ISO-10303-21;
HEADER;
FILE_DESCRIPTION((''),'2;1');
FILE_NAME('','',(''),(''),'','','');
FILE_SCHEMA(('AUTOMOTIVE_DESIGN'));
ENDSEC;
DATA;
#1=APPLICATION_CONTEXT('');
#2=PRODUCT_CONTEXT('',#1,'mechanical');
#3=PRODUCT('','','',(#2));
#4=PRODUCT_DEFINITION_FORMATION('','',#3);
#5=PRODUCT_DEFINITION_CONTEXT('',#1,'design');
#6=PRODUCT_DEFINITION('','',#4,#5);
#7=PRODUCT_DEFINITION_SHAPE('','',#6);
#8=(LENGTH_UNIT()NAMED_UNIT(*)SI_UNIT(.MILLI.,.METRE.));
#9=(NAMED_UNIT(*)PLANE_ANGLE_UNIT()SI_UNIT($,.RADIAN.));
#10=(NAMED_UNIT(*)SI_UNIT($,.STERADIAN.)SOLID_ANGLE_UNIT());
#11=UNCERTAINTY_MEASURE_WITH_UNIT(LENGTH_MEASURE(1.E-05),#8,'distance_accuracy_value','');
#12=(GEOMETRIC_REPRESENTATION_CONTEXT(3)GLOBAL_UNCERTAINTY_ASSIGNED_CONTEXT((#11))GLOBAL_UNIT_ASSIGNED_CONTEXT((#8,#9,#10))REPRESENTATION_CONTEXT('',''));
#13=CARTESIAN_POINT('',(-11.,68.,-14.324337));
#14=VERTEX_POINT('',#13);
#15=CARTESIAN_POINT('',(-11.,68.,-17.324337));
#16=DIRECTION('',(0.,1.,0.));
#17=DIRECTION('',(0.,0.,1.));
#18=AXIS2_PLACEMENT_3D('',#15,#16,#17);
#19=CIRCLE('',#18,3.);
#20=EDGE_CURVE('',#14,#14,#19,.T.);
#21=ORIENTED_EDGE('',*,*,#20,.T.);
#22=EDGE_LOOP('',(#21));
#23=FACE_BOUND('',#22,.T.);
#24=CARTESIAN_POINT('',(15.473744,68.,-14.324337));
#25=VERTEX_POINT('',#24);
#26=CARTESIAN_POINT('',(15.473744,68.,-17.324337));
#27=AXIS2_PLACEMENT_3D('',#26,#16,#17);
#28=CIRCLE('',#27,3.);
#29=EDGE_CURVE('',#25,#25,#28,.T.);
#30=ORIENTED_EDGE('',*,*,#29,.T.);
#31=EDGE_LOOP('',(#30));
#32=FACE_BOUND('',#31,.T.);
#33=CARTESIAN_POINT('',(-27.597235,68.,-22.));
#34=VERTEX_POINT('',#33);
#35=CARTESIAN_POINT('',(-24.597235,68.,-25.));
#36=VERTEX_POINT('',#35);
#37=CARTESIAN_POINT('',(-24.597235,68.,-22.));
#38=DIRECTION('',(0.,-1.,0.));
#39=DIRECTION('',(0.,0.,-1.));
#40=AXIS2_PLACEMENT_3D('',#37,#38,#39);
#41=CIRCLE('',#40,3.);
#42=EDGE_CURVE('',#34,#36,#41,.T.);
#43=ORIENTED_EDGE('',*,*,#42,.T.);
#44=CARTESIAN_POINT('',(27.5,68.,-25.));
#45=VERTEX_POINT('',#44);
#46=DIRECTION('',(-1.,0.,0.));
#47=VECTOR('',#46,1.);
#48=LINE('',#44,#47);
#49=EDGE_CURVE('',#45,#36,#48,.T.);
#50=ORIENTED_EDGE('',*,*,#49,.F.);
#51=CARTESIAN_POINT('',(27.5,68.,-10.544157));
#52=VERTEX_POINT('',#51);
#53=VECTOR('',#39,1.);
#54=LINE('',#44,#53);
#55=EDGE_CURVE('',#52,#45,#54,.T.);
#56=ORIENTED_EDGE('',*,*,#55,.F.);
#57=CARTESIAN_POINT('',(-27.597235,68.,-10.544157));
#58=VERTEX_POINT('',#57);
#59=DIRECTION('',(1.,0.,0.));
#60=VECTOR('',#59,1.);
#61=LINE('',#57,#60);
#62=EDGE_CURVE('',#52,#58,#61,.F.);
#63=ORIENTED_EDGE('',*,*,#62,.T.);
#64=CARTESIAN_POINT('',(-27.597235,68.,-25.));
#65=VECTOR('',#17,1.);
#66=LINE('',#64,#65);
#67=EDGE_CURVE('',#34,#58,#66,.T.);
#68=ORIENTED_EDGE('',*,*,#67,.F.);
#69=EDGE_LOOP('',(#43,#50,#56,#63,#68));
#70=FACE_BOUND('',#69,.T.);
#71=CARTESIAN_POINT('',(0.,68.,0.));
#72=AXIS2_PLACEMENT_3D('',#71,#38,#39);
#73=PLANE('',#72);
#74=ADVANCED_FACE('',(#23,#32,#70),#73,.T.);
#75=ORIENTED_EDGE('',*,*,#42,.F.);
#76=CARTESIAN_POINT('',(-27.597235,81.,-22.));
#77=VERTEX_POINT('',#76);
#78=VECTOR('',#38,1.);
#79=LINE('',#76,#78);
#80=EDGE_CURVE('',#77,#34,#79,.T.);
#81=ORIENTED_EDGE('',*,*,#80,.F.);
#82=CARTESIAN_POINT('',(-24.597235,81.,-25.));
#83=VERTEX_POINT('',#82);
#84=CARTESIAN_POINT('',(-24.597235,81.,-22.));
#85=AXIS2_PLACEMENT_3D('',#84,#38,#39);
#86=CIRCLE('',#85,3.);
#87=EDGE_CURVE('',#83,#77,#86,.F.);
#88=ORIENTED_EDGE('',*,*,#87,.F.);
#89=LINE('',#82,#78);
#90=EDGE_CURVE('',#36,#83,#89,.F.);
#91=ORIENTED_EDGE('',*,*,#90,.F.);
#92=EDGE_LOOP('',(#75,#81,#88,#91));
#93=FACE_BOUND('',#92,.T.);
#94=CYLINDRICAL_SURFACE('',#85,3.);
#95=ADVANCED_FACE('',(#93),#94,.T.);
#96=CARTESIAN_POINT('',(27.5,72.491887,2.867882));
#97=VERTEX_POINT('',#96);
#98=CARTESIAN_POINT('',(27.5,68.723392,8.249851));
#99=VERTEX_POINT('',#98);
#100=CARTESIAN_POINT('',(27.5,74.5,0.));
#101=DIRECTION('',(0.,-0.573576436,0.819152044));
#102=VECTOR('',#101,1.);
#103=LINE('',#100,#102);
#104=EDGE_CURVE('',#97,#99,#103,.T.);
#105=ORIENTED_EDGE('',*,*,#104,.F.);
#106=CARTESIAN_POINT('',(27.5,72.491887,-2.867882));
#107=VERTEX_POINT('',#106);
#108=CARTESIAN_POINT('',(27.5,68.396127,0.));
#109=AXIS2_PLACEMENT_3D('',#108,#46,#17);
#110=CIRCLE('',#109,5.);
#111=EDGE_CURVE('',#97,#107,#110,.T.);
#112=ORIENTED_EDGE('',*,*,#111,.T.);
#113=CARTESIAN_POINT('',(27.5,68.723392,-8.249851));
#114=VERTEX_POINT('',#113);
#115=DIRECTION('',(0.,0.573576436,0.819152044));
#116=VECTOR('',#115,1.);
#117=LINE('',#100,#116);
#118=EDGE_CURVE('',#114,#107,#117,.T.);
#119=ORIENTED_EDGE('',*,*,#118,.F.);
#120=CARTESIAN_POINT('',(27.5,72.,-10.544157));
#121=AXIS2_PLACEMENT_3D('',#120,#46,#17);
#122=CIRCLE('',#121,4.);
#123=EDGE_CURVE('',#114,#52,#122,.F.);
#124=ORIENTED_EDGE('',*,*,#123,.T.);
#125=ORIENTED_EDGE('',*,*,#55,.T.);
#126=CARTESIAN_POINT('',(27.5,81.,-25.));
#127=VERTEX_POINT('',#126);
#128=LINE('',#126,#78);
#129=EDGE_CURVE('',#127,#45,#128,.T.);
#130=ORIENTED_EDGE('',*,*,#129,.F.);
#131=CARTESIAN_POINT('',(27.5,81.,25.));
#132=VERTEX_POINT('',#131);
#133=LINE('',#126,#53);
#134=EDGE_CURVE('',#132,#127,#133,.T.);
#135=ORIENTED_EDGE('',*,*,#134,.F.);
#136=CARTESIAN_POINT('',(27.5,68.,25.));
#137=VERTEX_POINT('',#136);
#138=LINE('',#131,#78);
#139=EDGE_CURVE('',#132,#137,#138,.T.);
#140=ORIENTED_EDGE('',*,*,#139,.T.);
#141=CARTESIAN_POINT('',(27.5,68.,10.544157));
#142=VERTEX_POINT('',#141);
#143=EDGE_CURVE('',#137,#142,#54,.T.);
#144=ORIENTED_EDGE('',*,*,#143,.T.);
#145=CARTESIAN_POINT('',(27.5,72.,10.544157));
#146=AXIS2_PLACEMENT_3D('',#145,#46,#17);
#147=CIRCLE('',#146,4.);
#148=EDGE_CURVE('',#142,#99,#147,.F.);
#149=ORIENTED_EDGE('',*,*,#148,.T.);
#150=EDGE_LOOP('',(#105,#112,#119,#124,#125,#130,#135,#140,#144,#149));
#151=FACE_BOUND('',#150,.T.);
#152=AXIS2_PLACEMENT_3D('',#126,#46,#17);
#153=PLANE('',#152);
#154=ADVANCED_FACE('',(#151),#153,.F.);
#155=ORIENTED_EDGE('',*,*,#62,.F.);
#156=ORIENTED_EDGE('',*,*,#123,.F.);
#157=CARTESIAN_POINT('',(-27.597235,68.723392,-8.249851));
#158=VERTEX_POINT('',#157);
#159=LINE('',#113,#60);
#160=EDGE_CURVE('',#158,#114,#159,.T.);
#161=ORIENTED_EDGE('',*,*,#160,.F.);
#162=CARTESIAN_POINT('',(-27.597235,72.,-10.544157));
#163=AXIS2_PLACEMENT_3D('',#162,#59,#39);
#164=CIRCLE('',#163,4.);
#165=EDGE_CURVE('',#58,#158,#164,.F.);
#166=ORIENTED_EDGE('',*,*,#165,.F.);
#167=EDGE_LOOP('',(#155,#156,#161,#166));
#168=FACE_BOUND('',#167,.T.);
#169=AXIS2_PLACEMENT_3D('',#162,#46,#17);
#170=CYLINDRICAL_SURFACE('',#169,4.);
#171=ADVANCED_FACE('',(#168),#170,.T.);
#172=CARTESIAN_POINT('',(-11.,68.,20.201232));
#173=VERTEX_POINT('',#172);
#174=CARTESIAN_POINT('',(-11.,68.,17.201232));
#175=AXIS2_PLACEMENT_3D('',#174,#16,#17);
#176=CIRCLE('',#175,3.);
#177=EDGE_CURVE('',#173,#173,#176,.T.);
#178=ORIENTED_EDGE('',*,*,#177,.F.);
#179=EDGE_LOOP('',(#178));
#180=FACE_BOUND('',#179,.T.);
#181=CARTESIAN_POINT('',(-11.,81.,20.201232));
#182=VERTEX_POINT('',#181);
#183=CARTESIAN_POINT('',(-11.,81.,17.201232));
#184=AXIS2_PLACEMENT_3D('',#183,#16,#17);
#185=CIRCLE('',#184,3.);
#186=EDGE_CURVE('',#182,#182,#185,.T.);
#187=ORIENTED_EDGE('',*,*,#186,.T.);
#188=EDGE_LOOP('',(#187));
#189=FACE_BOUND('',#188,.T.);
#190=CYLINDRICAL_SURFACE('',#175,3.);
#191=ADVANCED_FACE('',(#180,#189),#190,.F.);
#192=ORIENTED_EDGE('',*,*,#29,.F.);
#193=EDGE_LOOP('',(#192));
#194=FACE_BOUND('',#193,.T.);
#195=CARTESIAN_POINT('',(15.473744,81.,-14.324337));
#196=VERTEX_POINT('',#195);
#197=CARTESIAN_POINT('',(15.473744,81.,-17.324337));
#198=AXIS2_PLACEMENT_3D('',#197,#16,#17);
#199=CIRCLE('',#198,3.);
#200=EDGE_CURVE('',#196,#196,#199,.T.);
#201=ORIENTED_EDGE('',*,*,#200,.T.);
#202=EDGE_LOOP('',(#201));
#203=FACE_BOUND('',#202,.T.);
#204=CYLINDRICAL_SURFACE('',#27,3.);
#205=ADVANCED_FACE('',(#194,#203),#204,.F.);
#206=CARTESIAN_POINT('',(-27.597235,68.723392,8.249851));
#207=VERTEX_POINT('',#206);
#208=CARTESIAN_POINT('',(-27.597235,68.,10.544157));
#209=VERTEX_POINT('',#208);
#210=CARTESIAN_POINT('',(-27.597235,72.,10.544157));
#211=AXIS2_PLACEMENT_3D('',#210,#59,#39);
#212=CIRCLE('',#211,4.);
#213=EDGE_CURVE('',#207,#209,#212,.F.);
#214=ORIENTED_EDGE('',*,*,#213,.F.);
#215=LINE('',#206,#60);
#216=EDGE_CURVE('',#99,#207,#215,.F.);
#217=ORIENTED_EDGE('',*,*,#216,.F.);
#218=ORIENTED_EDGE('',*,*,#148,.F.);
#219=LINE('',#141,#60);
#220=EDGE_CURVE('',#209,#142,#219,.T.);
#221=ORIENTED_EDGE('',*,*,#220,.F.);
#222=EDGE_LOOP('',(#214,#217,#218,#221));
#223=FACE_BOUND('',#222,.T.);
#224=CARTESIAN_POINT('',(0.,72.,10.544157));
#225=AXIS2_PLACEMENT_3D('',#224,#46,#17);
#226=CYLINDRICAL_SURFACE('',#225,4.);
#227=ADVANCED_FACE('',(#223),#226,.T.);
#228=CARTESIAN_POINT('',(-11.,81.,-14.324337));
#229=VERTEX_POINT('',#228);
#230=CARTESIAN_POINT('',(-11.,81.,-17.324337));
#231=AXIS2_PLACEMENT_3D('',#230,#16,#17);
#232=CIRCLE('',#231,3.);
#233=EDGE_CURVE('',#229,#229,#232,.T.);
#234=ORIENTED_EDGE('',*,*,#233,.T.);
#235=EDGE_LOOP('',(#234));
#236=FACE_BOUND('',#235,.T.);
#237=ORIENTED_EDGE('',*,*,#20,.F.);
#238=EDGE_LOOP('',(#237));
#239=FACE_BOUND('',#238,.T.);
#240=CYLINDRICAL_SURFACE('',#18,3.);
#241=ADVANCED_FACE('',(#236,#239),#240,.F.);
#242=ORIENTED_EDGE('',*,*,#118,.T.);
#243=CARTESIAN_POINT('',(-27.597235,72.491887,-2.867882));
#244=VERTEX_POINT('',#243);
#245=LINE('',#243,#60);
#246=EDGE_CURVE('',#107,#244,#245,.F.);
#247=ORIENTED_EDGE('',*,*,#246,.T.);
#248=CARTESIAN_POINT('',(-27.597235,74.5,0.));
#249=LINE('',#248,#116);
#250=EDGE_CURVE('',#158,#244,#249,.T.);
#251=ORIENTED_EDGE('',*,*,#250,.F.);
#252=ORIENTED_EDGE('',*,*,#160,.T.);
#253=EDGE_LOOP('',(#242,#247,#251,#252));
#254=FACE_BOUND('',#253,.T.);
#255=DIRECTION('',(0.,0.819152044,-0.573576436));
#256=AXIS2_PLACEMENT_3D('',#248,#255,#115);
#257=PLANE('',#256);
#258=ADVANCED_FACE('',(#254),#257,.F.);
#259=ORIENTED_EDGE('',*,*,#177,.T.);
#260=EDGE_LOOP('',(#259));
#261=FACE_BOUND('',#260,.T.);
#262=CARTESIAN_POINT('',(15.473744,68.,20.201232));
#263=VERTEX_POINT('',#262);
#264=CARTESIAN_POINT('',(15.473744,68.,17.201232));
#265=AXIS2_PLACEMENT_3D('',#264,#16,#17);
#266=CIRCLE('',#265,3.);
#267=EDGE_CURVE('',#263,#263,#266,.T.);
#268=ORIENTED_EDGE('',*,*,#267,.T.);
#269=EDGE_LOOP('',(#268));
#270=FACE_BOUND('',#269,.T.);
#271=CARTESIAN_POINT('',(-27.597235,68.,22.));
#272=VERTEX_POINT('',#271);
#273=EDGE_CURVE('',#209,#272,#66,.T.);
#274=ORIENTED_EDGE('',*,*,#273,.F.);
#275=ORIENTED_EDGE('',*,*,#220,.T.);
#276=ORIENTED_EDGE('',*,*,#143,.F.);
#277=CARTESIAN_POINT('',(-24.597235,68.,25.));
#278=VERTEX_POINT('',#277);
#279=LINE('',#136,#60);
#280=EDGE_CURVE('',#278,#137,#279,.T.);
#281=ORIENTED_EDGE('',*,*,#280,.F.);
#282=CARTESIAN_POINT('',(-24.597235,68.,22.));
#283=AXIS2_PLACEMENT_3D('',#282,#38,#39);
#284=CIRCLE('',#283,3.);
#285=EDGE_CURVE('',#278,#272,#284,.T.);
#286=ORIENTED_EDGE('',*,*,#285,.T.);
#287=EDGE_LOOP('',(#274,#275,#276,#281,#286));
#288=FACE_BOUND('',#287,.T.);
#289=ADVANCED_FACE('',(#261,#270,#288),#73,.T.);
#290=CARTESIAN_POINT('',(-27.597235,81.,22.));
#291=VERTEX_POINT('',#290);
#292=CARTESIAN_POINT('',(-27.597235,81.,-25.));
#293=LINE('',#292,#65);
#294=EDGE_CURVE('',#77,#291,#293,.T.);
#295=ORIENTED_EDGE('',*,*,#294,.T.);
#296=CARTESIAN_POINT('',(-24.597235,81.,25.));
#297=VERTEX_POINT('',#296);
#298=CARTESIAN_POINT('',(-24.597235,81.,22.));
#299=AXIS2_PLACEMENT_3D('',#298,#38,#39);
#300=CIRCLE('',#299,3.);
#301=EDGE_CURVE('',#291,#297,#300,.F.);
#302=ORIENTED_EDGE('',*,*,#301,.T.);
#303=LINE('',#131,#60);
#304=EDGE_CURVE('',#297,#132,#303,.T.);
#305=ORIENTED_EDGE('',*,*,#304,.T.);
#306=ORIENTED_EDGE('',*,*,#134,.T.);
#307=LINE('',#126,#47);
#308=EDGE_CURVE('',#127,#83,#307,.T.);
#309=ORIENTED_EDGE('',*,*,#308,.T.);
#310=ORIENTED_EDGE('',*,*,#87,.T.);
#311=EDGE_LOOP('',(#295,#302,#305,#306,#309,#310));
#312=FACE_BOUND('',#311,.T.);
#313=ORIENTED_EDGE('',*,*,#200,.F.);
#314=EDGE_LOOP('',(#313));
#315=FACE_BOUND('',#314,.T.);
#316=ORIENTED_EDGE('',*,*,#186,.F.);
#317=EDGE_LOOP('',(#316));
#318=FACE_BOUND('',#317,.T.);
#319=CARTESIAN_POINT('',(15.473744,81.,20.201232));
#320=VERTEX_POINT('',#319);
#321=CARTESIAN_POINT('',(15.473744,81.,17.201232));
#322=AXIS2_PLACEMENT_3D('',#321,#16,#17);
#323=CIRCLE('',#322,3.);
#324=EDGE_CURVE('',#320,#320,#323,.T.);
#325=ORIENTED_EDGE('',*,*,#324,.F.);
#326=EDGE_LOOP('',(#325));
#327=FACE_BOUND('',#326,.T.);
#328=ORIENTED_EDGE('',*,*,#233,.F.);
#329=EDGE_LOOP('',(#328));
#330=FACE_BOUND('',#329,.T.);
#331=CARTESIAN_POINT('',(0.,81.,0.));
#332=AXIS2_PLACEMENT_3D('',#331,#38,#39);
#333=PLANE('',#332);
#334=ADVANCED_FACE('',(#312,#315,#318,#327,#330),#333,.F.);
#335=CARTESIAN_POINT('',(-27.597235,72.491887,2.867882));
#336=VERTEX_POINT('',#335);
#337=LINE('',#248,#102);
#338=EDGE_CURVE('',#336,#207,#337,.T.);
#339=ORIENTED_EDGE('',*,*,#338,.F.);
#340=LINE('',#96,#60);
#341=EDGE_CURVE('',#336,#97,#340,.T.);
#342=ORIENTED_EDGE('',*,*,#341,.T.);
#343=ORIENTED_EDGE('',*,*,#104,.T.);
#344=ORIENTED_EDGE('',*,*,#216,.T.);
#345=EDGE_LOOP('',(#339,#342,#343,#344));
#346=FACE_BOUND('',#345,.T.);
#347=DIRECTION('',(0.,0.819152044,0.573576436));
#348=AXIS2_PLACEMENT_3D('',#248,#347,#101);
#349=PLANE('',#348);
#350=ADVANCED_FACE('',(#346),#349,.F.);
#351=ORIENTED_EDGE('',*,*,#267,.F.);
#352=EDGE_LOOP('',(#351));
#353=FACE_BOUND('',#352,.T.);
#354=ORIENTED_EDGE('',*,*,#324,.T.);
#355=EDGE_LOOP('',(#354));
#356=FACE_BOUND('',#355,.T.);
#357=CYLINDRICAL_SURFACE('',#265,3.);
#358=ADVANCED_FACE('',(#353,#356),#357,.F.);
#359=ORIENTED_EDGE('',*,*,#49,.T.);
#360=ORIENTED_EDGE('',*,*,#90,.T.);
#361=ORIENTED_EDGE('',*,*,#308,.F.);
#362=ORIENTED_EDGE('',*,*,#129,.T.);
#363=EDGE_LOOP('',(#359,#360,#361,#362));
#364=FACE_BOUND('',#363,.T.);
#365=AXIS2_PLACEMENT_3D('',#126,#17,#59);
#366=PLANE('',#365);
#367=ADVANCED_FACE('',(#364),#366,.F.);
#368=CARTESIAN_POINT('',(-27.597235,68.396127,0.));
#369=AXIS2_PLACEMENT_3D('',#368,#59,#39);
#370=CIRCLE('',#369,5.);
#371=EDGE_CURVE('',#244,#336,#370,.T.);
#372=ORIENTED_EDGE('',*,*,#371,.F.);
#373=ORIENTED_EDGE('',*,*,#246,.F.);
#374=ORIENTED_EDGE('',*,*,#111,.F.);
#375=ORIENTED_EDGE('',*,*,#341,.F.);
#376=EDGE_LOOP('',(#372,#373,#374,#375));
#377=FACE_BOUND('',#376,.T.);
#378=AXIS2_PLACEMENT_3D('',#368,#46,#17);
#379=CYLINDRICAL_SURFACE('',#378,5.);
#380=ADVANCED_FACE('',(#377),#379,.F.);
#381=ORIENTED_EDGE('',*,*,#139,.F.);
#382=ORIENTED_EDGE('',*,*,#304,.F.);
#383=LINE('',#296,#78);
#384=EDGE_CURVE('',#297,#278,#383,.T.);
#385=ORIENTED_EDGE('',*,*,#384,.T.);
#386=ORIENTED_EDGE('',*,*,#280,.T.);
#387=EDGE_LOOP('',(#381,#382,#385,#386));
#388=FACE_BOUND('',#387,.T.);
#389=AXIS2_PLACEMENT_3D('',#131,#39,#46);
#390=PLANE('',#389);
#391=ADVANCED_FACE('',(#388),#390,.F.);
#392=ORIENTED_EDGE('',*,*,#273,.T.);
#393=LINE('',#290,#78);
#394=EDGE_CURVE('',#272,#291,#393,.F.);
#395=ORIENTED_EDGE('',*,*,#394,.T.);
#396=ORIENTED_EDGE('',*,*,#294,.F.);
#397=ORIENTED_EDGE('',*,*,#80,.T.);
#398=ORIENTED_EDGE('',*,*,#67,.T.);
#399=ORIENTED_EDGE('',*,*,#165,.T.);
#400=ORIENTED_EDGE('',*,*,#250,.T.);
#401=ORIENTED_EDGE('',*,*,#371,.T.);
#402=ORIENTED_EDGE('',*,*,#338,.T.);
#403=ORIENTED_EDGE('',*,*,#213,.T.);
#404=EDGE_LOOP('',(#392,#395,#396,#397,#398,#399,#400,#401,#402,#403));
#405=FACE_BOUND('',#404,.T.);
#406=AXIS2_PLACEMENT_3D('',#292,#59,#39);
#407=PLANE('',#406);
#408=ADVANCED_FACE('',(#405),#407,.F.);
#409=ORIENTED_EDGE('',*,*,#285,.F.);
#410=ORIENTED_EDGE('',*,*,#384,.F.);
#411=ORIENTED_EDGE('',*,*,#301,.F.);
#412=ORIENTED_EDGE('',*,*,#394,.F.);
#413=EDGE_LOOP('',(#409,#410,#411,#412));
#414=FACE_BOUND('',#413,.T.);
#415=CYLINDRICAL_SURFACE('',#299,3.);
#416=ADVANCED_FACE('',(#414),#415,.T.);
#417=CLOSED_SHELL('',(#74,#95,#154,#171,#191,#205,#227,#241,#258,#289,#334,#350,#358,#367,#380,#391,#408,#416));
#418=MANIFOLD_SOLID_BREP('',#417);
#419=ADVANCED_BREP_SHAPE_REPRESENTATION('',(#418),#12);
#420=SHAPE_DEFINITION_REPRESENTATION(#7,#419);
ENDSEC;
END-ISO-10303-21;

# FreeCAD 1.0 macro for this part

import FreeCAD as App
import Part
import Sketcher

V = App.Vector
Q = App.Units.Quantity


def edges_at(feature, points):
    """Names of the edges that pass closest to the given points."""
    edges = feature.Shape.Edges
    near = lambda p: min(range(len(edges)), key=lambda i: edges[i].distToShape(Part.Vertex(*p))[0])
    return sorted({f"Edge{near(p) + 1}" for p in points})

doc = App.newDocument("Part")
params = doc.addObject("Spreadsheet::Sheet", "Params")
for row, (alias, value) in enumerate([
    ("sketch1_height", "50 mm"),
    ("pad1_length", "13 mm"),
    ("fillet_radius", "3 mm"),
    ("sketch3_diameter", "6 mm"),
    ("fillet2_radius", "5 mm"),
    ("fillet3_radius", "4 mm"),
], start=1):
    params.set(f"A{row}", alias)
    params.set(f"B{row}", "=" + value)
    params.setAlias(f"B{row}", alias)

body = doc.addObject("PartDesign::Body", "Body")

sketch1 = body.newObject("Sketcher::SketchObject", "Sketch")
sketch1.AttachmentSupport = (doc.getObject("XZ_Plane"), [""])
sketch1.MapMode = "FlatFace"
sketch1.AttachmentOffset = App.Placement(V(0, 0, -68), App.Rotation())
sketch1.addGeometry([
    Part.LineSegment(V(-28, -25, 0), V(-28, 25, 0)),
    Part.LineSegment(V(-28, 25, 0), V(28, 25, 0)),
    Part.LineSegment(V(28, 25, 0), V(28, -25, 0)),
    Part.LineSegment(V(28, -25, 0), V(-28, -25, 0)),
], False)
sketch1.addConstraint([
    Sketcher.Constraint("Coincident", 0, 2, 1, 1),
    Sketcher.Constraint("Coincident", 1, 2, 2, 1),
    Sketcher.Constraint("Coincident", 2, 2, 3, 1),
    Sketcher.Constraint("Coincident", 3, 2, 0, 1),
    Sketcher.Constraint("Vertical", 0),
    Sketcher.Constraint("Horizontal", 1),
    Sketcher.Constraint("Vertical", 2),
    Sketcher.Constraint("Horizontal", 3),
    Sketcher.Constraint("DistanceY", 0, 1, 0, 2, 50.0),
    Sketcher.Constraint("DistanceY", -1, 1, 0, 2, 25.0),
    Sketcher.Constraint("DistanceX", -1, 1, 1, 2, 27.5),
    Sketcher.Constraint("DistanceX", 1, 1, 1, 2, 55.097235),
])
sketch1.setExpression("Constraints[8]", "Params.sketch1_height")
pad1 = body.newObject("PartDesign::Pad", "Pad")
pad1.Profile = sketch1
pad1.setExpression("Length", "Params.pad1_length")
pad1.Reversed = True

sketch2 = body.newObject("Sketcher::SketchObject", "Sketch001")
sketch2.AttachmentSupport = (doc.getObject("YZ_Plane"), [""])
sketch2.MapMode = "FlatFace"
sketch2.AttachmentOffset = App.Placement(V(0, 0, 27.5), App.Rotation())
sketch2.addGeometry([
    Part.LineSegment(V(74, 0, 0), V(68, 9, 0)),
    Part.LineSegment(V(68, 9, 0), V(62, 0, 0)),
    Part.LineSegment(V(62, 0, 0), V(68, -9, 0)),
    Part.LineSegment(V(68, -9, 0), V(74, 0, 0)),
], False)
sketch2.addConstraint([
    Sketcher.Constraint("Coincident", 0, 2, 1, 1),
    Sketcher.Constraint("Coincident", 1, 2, 2, 1),
    Sketcher.Constraint("Coincident", 2, 2, 3, 1),
    Sketcher.Constraint("Coincident", 3, 2, 0, 1),
    Sketcher.Constraint("Symmetric", 0, 2, 2, 2, -1),
    Sketcher.Constraint("PointOnObject", 1, 2, -1),
    Sketcher.Constraint("PointOnObject", 3, 2, -1),
    Sketcher.Constraint("Parallel", 0, 2),
    Sketcher.Constraint("Angle", 0, Q("125 deg")),
    Sketcher.Constraint("DistanceX", -1, 1, 0, 2, 68.0),
    Sketcher.Constraint("DistanceX", 1, 2, 3, 2, 13.0),
])
pocket1 = body.newObject("PartDesign::Pocket", "Pocket")
pocket1.Profile = sketch2
pocket1.Type = "ThroughAll"
doc.recompute()

fillet = body.newObject("PartDesign::Fillet", "Fillet")
fillet.Base = (pocket1, edges_at(pocket1, [(-27.597, 74.5, 25), (-27.597, 74.5, -25)]))
fillet.setExpression("Radius", "Params.fillet_radius")

sketch3 = body.newObject("Sketcher::SketchObject", "Sketch002")
sketch3.AttachmentSupport = (doc.getObject("XZ_Plane"), [""])
sketch3.MapMode = "FlatFace"
sketch3.AttachmentOffset = App.Placement(V(0, 0, -81), App.Rotation())
sketch3.addGeometry([
    Part.Circle(V(15.5, 17.2, 0), V(0, 0, 1), 3),
    Part.Circle(V(-11, 17.2, 0), V(0, 0, 1), 3),
    Part.Circle(V(15.5, -17.3, 0), V(0, 0, 1), 3),
    Part.Circle(V(-11, -17.3, 0), V(0, 0, 1), 3),
], False)
sketch3.addConstraint([
    Sketcher.Constraint("Equal", 0, 1),
    Sketcher.Constraint("Equal", 1, 2),
    Sketcher.Constraint("Equal", 2, 3),
    Sketcher.Constraint("Horizontal", 0, 3, 1, 3),
    Sketcher.Constraint("Horizontal", 2, 3, 3, 3),
    Sketcher.Constraint("Vertical", 0, 3, 2, 3),
    Sketcher.Constraint("Vertical", 1, 3, 3, 3),
    Sketcher.Constraint("Diameter", 0, 6.0),
    Sketcher.Constraint("DistanceX", 1, 3, -1, 1, 11.0),
    Sketcher.Constraint("DistanceY", 2, 3, 0, 3, 34.525569),
    Sketcher.Constraint("DistanceX", -1, 1, 0, 3, 15.473744),
    Sketcher.Constraint("DistanceY", -1, 1, 0, 3, 17.201232),
])
sketch3.setExpression("Constraints[7]", "Params.sketch3_diameter")
pocket2 = body.newObject("PartDesign::Pocket", "Pocket001")
pocket2.Profile = sketch3
pocket2.Type = "ThroughAll"
pocket2.Reversed = True
doc.recompute()

fillet2 = body.newObject("PartDesign::Fillet", "Fillet001")
fillet2.Base = (pocket2, edges_at(pocket2, [(-0.049, 74.5, 0)]))
fillet2.setExpression("Radius", "Params.fillet2_radius")
doc.recompute()

fillet3 = body.newObject("PartDesign::Fillet", "Fillet002")
fillet3.Base = (fillet2, edges_at(fillet2, [(-0.049, 68, -9.283), (-0.049, 68, 9.283)]))
fillet3.setExpression("Radius", "Params.fillet3_radius")

doc.recompute()
